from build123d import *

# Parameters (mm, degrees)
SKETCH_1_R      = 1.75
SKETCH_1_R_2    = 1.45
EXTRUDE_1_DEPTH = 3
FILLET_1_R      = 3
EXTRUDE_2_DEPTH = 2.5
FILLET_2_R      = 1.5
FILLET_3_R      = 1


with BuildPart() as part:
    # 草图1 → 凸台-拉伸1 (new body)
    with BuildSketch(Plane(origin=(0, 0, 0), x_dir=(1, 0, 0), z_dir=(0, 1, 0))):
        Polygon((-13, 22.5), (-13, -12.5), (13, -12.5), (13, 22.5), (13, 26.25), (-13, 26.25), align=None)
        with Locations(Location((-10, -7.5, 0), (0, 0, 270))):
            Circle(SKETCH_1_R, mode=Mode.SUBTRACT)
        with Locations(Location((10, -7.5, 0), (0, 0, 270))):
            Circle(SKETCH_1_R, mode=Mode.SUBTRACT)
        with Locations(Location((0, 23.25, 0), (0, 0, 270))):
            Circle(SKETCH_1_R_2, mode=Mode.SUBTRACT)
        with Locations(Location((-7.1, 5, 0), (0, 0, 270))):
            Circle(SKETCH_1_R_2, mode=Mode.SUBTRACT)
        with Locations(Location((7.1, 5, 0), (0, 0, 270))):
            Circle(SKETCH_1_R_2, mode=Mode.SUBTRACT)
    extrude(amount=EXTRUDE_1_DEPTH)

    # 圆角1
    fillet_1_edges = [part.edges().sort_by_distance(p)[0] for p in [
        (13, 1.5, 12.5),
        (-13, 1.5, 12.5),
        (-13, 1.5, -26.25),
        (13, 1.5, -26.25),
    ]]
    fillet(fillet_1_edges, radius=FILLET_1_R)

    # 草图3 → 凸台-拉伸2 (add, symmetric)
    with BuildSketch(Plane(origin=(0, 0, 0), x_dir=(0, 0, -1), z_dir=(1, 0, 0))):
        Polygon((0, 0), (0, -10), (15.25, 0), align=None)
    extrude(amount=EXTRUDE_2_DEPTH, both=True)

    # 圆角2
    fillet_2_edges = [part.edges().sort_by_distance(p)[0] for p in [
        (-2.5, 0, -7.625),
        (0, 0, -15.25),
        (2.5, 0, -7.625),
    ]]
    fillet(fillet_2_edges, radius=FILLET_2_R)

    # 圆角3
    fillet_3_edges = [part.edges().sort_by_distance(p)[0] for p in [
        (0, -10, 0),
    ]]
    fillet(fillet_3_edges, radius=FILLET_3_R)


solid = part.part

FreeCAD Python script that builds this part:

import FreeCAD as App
import Part
import Sketcher

V = App.Vector
Q = App.Units.Quantity


def edges_at(feature, points):
    """Names of the edges that pass closest to the given points."""
    edges = feature.Shape.Edges
    near = lambda p: min(range(len(edges)), key=lambda i: edges[i].distToShape(Part.Vertex(*p))[0])
    return sorted({f"Edge{near(p) + 1}" for p in points})


def add_polygon(sketch, points):
    """Adds a closed chain of lines whose ends are joined by coincident constraints."""
    first, n = sketch.GeometryCount, len(points)
    for a, b in zip(points, points[1:] + points[:1]):
        sketch.addGeometry(Part.LineSegment(App.Vector(*a, 0), App.Vector(*b, 0)), False)
    for i in range(n):
        sketch.addConstraint(Sketcher.Constraint("Coincident", first + i, 2, first + (i + 1) % n, 1))

doc = App.newDocument("Part")
params = doc.addObject("Spreadsheet::Sheet", "Params")
for row, (alias, value) in enumerate([
    ("sketch1_diameter", "3.5 mm"),
    ("sketch1_diameter2", "2.9 mm"),
    ("sketch1_width", "26 mm"),
    ("sketch1_height", "38.75 mm"),
    ("pad1_length", "3 mm"),
    ("fillet_radius", "3 mm"),
    ("sketch2_width", "10 mm"),
    ("sketch2_height", "15.25 mm"),
    ("pad2_length", "5 mm"),
    ("fillet2_radius", "1.5 mm"),
    ("fillet3_radius", "1 mm"),
], start=1):
    params.set(f"A{row}", alias)
    params.set(f"B{row}", "=" + value)
    params.setAlias(f"B{row}", alias)

body = doc.addObject("PartDesign::Body", "Body")

sketch1 = body.newObject("Sketcher::SketchObject", "Sketch")
sketch1.AttachmentSupport = (doc.getObject("XZ_Plane"), [""])
sketch1.MapMode = "FlatFace"
add_polygon(sketch1, [(-13, 12.5), (13, 12.5), (13, -26.2), (-13, -26.2)])
sketch1.addGeometry(Part.Circle(V(-10, 7.5, 0), V(0, 0, 1), 1.8), False)
sketch1.addGeometry(Part.Circle(V(-7.1, -5, 0), V(0, 0, 1), 1.4), False)
sketch1.addGeometry(Part.Circle(V(10, 7.5, 0), V(0, 0, 1), 1.8), False)
sketch1.addGeometry(Part.Circle(V(7.1, -5, 0), V(0, 0, 1), 1.4), False)
sketch1.addGeometry(Part.Circle(V(0, -23.2, 0), V(0, 0, 1), 1.4), False)
sketch1.addConstraint(Sketcher.Constraint("Horizontal", 0))
sketch1.addConstraint(Sketcher.Constraint("Vertical", 1))
sketch1.addConstraint(Sketcher.Constraint("Horizontal", 2))
sketch1.addConstraint(Sketcher.Constraint("Vertical", 3))
sketch1.addConstraint(Sketcher.Constraint("Equal", 4, 6))
sketch1.addConstraint(Sketcher.Constraint("Equal", 5, 7))
sketch1.addConstraint(Sketcher.Constraint("Equal", 7, 8))
sketch1.addConstraint(Sketcher.Constraint("Symmetric", 4, 3, 6, 3, -2))
sketch1.addConstraint(Sketcher.Constraint("Symmetric", 5, 3, 7, 3, -2))
sketch1.addConstraint(Sketcher.Constraint("PointOnObject", 8, 3, -2))
sketch1.addConstraint(Sketcher.Constraint("Diameter", 4, Q("3.5 mm")))
sketch1.addConstraint(Sketcher.Constraint("Diameter", 5, Q("2.9 mm")))
sketch1.addConstraint(Sketcher.Constraint("DistanceX", 0, 1, 0, 2, Q("26 mm")))
sketch1.addConstraint(Sketcher.Constraint("DistanceX", 4, 3, -1, 1, Q("10 mm")))
sketch1.addConstraint(Sketcher.Constraint("DistanceY", 5, 3, -1, 1, Q("5 mm")))
sketch1.addConstraint(Sketcher.Constraint("DistanceX", -1, 1, 0, 2, Q("13 mm")))
sketch1.addConstraint(Sketcher.Constraint("DistanceY", 6, 3, 0, 2, Q("5 mm")))
sketch1.addConstraint(Sketcher.Constraint("DistanceY", 1, 2, 8, 3, Q("3 mm")))
sketch1.addConstraint(Sketcher.Constraint("DistanceY", 1, 2, 1, 1, Q("38.75 mm")))
sketch1.addConstraint(Sketcher.Constraint("DistanceY", -1, 1, 4, 3, Q("7.5 mm")))
sketch1.addConstraint(Sketcher.Constraint("DistanceX", 5, 3, -1, 1, Q("7.1 mm")))
sketch1.setExpression("Constraints[14]", "Params.sketch1_diameter")
sketch1.setExpression("Constraints[15]", "Params.sketch1_diameter2")
sketch1.setExpression("Constraints[16]", "Params.sketch1_width")
sketch1.setExpression("Constraints[22]", "Params.sketch1_height")
pad1 = body.newObject("PartDesign::Pad", "Pad")
pad1.Profile = sketch1
pad1.setExpression("Length", "Params.pad1_length")
pad1.Reversed = True
doc.recompute()

fillet = body.newObject("PartDesign::Fillet", "Fillet")
fillet.Base = (pad1, edges_at(pad1, [
    (13, 1.5, 12.5),
    (-13, 1.5, 12.5),
    (-13, 1.5, -26.25),
    (13, 1.5, -26.25),
]))
fillet.setExpression("Radius", "Params.fillet_radius")

sketch2 = body.newObject("Sketcher::SketchObject", "Sketch001")
sketch2.AttachmentSupport = (doc.getObject("YZ_Plane"), [""])
sketch2.MapMode = "FlatFace"
add_polygon(sketch2, [(0, 0), (-10, 0), (0, -15)])
sketch2.addConstraint(Sketcher.Constraint("Horizontal", 0))
sketch2.addConstraint(Sketcher.Constraint("Vertical", 2))
sketch2.addConstraint(Sketcher.Constraint("Coincident", 2, 2, -1, 1))
sketch2.addConstraint(Sketcher.Constraint("DistanceX", 0, 2, 0, 1, Q("10 mm")))
sketch2.addConstraint(Sketcher.Constraint("DistanceY", 2, 1, 2, 2, Q("15.25 mm")))
sketch2.setExpression("Constraints[6]", "Params.sketch2_width")
sketch2.setExpression("Constraints[7]", "Params.sketch2_height")
pad2 = body.newObject("PartDesign::Pad", "Pad001")
pad2.Profile = sketch2
pad2.setExpression("Length", "Params.pad2_length")
pad2.Midplane = True
doc.recompute()

fillet2 = body.newObject("PartDesign::Fillet", "Fillet001")
fillet2.Base = (pad2, edges_at(pad2, [(-2.5, 0, -7.625), (0, 0, -15.25), (2.5, 0, -7.625)]))
fillet2.setExpression("Radius", "Params.fillet2_radius")
doc.recompute()

fillet3 = body.newObject("PartDesign::Fillet", "Fillet002")
fillet3.Base = (fillet2, edges_at(fillet2, [(0, -10, 0)]))
fillet3.setExpression("Radius", "Params.fillet3_radius")

doc.recompute()
